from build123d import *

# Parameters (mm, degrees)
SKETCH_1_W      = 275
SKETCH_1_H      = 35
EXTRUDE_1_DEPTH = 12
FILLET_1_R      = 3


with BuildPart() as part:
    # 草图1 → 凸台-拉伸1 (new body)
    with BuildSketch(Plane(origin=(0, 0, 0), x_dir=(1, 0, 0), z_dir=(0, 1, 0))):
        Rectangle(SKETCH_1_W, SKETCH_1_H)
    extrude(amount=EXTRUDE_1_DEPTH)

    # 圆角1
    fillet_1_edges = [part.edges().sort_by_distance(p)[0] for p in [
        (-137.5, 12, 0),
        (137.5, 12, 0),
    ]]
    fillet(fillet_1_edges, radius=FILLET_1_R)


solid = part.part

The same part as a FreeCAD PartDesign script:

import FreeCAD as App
import Part
import Sketcher

V = App.Vector
Q = App.Units.Quantity


def edges_at(feature, points):
    """Names of the edges that pass closest to the given points."""
    edges = feature.Shape.Edges
    near = lambda p: min(range(len(edges)), key=lambda i: edges[i].distToShape(Part.Vertex(*p))[0])
    return sorted({f"Edge{near(p) + 1}" for p in points})

doc = App.newDocument("Part")
body = doc.addObject("PartDesign::Body", "Body")

# Sketch on XZ plane
sketch1 = doc.addObject("Sketcher::SketchObject", "Sketch")
body.addObject(sketch1)
sketch1.AttachmentSupport = (doc.XZ_Plane, [""])
sketch1.MapMode = "FlatFace"
sketch1.addGeometry([
    Part.LineSegment(V(-137.5, -17.5, 0), V(-137.5, 17.5, 0)),
    Part.LineSegment(V(-137.5, 17.5, 0), V(137.5, 17.5, 0)),
    Part.LineSegment(V(137.5, 17.5, 0), V(137.5, -17.5, 0)),
    Part.LineSegment(V(137.5, -17.5, 0), V(-137.5, -17.5, 0)),
], False)
sketch1.addConstraint([
    Sketcher.Constraint("Coincident", 0, 2, 1, 1),
    Sketcher.Constraint("Coincident", 1, 2, 2, 1),
    Sketcher.Constraint("Coincident", 2, 2, 3, 1),
    Sketcher.Constraint("Coincident", 3, 2, 0, 1),
    Sketcher.Constraint("Vertical", 0),
    Sketcher.Constraint("Horizontal", 1),
    Sketcher.Constraint("Vertical", 2),
    Sketcher.Constraint("Horizontal", 3),
    Sketcher.Constraint("Symmetric", 0, 2, 2, 2, -1, 1),
    Sketcher.Constraint("DistanceX", 1, 1, 1, 2, Q("275 mm")),
    Sketcher.Constraint("DistanceY", 0, 1, 0, 2, Q("35 mm")),
])
pad1 = doc.addObject("PartDesign::Pad", "Pad")
body.addObject(pad1)
pad1.Profile = sketch1
pad1.Length = 12
pad1.Reversed = True
doc.recompute()

fillet = doc.addObject("PartDesign::Fillet", "Fillet")
body.addObject(fillet)
fillet.Base = (pad1, edges_at(pad1, [(-137.5, 12, 0), (137.5, 12, 0)]))
fillet.Radius = 3

doc.recompute()
